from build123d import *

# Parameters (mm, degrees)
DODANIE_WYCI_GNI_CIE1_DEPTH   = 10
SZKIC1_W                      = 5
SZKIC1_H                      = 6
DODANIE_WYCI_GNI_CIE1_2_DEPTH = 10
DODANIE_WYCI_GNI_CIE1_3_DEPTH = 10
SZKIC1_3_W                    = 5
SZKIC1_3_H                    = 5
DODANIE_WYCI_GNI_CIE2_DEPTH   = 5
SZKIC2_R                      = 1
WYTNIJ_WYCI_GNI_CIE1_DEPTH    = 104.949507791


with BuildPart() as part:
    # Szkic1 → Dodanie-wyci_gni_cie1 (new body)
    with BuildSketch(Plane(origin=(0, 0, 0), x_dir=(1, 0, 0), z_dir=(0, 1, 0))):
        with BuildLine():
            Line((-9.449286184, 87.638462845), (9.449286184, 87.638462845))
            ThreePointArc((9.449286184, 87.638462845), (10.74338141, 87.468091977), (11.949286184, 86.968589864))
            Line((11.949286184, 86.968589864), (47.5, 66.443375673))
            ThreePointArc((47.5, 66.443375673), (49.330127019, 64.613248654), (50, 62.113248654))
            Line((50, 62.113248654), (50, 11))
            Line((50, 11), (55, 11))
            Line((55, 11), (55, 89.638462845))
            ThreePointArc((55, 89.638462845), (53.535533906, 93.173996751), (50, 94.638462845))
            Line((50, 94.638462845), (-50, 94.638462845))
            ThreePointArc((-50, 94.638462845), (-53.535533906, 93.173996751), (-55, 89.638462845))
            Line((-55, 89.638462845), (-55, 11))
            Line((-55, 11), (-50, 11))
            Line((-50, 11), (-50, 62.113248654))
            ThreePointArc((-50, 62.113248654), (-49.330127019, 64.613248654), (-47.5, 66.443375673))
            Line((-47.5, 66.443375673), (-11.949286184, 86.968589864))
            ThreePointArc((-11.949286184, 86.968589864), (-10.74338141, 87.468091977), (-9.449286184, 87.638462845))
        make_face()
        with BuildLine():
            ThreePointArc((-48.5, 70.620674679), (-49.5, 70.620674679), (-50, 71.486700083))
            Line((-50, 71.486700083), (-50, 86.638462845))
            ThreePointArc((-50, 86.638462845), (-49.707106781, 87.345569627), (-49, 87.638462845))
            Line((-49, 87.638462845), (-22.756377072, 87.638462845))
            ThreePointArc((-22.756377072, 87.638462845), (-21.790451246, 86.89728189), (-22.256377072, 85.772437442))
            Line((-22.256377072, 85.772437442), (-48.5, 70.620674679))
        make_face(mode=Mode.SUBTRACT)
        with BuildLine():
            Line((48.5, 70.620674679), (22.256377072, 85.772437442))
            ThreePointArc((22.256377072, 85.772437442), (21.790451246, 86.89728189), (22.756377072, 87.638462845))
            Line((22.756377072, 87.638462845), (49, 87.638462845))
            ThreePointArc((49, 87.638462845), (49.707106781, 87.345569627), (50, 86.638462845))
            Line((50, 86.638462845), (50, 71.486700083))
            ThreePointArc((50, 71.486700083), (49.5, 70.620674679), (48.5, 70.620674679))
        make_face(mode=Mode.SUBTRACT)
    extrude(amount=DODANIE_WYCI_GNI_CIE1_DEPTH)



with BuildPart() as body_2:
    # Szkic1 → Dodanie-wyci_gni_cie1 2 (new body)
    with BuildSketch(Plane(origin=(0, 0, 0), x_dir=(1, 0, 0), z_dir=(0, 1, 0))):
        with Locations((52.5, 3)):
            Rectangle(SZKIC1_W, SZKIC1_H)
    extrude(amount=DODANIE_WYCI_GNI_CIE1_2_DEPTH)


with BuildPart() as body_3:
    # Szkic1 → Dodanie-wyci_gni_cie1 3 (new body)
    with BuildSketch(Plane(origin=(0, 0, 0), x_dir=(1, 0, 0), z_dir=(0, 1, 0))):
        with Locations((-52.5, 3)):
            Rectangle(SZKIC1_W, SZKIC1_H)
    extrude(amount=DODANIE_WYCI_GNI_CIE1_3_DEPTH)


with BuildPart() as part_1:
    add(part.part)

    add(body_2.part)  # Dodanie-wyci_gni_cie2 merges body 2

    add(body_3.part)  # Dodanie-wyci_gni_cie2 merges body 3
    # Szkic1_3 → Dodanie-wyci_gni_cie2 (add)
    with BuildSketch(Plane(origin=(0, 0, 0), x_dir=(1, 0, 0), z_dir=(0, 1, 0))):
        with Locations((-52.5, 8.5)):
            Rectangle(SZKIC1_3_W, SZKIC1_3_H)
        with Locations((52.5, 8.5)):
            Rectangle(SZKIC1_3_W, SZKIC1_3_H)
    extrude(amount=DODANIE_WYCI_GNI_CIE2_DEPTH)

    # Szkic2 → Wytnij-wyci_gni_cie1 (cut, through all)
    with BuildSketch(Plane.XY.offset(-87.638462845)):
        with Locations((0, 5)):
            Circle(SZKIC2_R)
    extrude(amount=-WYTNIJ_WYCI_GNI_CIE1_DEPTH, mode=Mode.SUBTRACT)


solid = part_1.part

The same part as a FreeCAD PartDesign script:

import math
import FreeCAD as App
import Part
import Sketcher
from FreeCAD import Vector
Q = App.Units.Quantity


def add_polygon(sketch, points):
    """Adds a closed chain of lines whose ends are joined by coincident constraints."""
    first, n = sketch.GeometryCount, len(points)
    for a, b in zip(points, points[1:] + points[:1]):
        sketch.addGeometry(Part.LineSegment(App.Vector(*a, 0), App.Vector(*b, 0)), False)
    for i in range(n):
        sketch.addConstraint(Sketcher.Constraint("Coincident", first + i, 2, first + (i + 1) % n, 1))

doc = App.newDocument("Part")
body = doc.addObject("PartDesign::Body", "Body")

# Sketch on XZ plane
sketch1 = body.newObject("Sketcher::SketchObject", "Sketch")
sketch1.AttachmentSupport = (doc.getObject("XZ_Plane"), [""])
sketch1.MapMode = "FlatFace"
sketch1.addGeometry(Part.LineSegment(Vector(-9.4, -87.6, 0), Vector(9.4, -87.6, 0)), False)
sketch1.addGeometry(Part.ArcOfCircle(Part.Circle(Vector(9.4, -82.6, 0), Vector(0, 0, 1), 5), math.radians(-90), math.radians(-60)), False)
sketch1.addGeometry(Part.LineSegment(Vector(11.9, -87, 0), Vector(47.5, -66.4, 0)), False)
sketch1.addGeometry(Part.ArcOfCircle(Part.Circle(Vector(45, -62.1, 0), Vector(0, 0, 1), 5), math.radians(-60), math.radians(0)), False)
sketch1.addGeometry(Part.LineSegment(Vector(50, -62.1, 0), Vector(50, -11, 0)), False)
sketch1.addGeometry(Part.LineSegment(Vector(50, -11, 0), Vector(55, -11, 0)), False)
sketch1.addGeometry(Part.LineSegment(Vector(55, -11, 0), Vector(55, -89.6, 0)), False)
sketch1.addGeometry(Part.ArcOfCircle(Part.Circle(Vector(50, -89.6, 0), Vector(0, 0, 1), 5), math.radians(-90), math.radians(0)), False)
sketch1.addGeometry(Part.LineSegment(Vector(50, -94.6, 0), Vector(-50, -94.6, 0)), False)
sketch1.addGeometry(Part.ArcOfCircle(Part.Circle(Vector(-50, -89.6, 0), Vector(0, 0, 1), 5), math.radians(180), math.radians(270)), False)
sketch1.addGeometry(Part.LineSegment(Vector(-55, -89.6, 0), Vector(-55, -11, 0)), False)
sketch1.addGeometry(Part.LineSegment(Vector(-55, -11, 0), Vector(-50, -11, 0)), False)
sketch1.addGeometry(Part.LineSegment(Vector(-50, -11, 0), Vector(-50, -62.1, 0)), False)
sketch1.addGeometry(Part.ArcOfCircle(Part.Circle(Vector(-45, -62.1, 0), Vector(0, 0, 1), 5), math.radians(180), math.radians(240)), False)
sketch1.addGeometry(Part.LineSegment(Vector(-47.5, -66.4, 0), Vector(-11.9, -87, 0)), False)
sketch1.addGeometry(Part.ArcOfCircle(Part.Circle(Vector(-9.4, -82.6, 0), Vector(0, 0, 1), 5), math.radians(-120), math.radians(-90)), False)
sketch1.addGeometry(Part.ArcOfCircle(Part.Circle(Vector(49, -71.5, 0), Vector(0, 0, 1), 1), math.radians(0), math.radians(120)), False)
sketch1.addGeometry(Part.LineSegment(Vector(48.5, -70.6, 0), Vector(22.3, -85.8, 0)), False)
sketch1.addGeometry(Part.ArcOfCircle(Part.Circle(Vector(22.8, -86.6, 0), Vector(0, 0, 1), 1), math.radians(120), math.radians(270)), False)
sketch1.addGeometry(Part.LineSegment(Vector(22.8, -87.6, 0), Vector(49, -87.6, 0)), False)
sketch1.addGeometry(Part.ArcOfCircle(Part.Circle(Vector(49, -86.6, 0), Vector(0, 0, 1), 1), math.radians(-90), math.radians(0)), False)
sketch1.addGeometry(Part.LineSegment(Vector(50, -86.6, 0), Vector(50, -71.5, 0)), False)
sketch1.addGeometry(Part.LineSegment(Vector(-22.3, -85.8, 0), Vector(-48.5, -70.6, 0)), False)
sketch1.addGeometry(Part.ArcOfCircle(Part.Circle(Vector(-49, -71.5, 0), Vector(0, 0, 1), 1), math.radians(60), math.radians(180)), False)
sketch1.addGeometry(Part.LineSegment(Vector(-50, -71.5, 0), Vector(-50, -86.6, 0)), False)
sketch1.addGeometry(Part.ArcOfCircle(Part.Circle(Vector(-49, -86.6, 0), Vector(0, 0, 1), 1), math.radians(180), math.radians(270)), False)
sketch1.addGeometry(Part.LineSegment(Vector(-49, -87.6, 0), Vector(-22.8, -87.6, 0)), False)
sketch1.addGeometry(Part.ArcOfCircle(Part.Circle(Vector(-22.8, -86.6, 0), Vector(0, 0, 1), 1), math.radians(-90), math.radians(60)), False)
sketch1.addConstraint(Sketcher.Constraint("Tangent", 0, 2, 1, 1))
sketch1.addConstraint(Sketcher.Constraint("Tangent", 1, 2, 2, 1))
sketch1.addConstraint(Sketcher.Constraint("Tangent", 2, 2, 3, 1))
sketch1.addConstraint(Sketcher.Constraint("Tangent", 3, 2, 4, 1))
sketch1.addConstraint(Sketcher.Constraint("Coincident", 4, 2, 5, 1))
sketch1.addConstraint(Sketcher.Constraint("Coincident", 5, 2, 6, 1))
sketch1.addConstraint(Sketcher.Constraint("Tangent", 6, 2, 7, 2))
sketch1.addConstraint(Sketcher.Constraint("Tangent", 7, 1, 8, 1))
sketch1.addConstraint(Sketcher.Constraint("Tangent", 8, 2, 9, 2))
sketch1.addConstraint(Sketcher.Constraint("Tangent", 9, 1, 10, 1))
sketch1.addConstraint(Sketcher.Constraint("Coincident", 10, 2, 11, 1))
sketch1.addConstraint(Sketcher.Constraint("Coincident", 11, 2, 12, 1))
sketch1.addConstraint(Sketcher.Constraint("Tangent", 12, 2, 13, 1))
sketch1.addConstraint(Sketcher.Constraint("Tangent", 13, 2, 14, 1))
sketch1.addConstraint(Sketcher.Constraint("Tangent", 14, 2, 15, 1))
sketch1.addConstraint(Sketcher.Constraint("Tangent", 15, 2, 0, 1))
sketch1.addConstraint(Sketcher.Constraint("Tangent", 16, 2, 17, 1))
sketch1.addConstraint(Sketcher.Constraint("Tangent", 17, 2, 18, 1))
sketch1.addConstraint(Sketcher.Constraint("Tangent", 18, 2, 19, 1))
sketch1.addConstraint(Sketcher.Constraint("Tangent", 19, 2, 20, 1))
sketch1.addConstraint(Sketcher.Constraint("Tangent", 20, 2, 21, 1))
sketch1.addConstraint(Sketcher.Constraint("Tangent", 21, 2, 16, 1))
sketch1.addConstraint(Sketcher.Constraint("Tangent", 22, 2, 23, 1))
sketch1.addConstraint(Sketcher.Constraint("Tangent", 23, 2, 24, 1))
sketch1.addConstraint(Sketcher.Constraint("Tangent", 24, 2, 25, 1))
sketch1.addConstraint(Sketcher.Constraint("Tangent", 25, 2, 26, 1))
sketch1.addConstraint(Sketcher.Constraint("Tangent", 26, 2, 27, 1))
sketch1.addConstraint(Sketcher.Constraint("Tangent", 27, 2, 22, 1))
sketch1.addConstraint(Sketcher.Constraint("Horizontal", 0))
sketch1.addConstraint(Sketcher.Constraint("Vertical", 4))
sketch1.addConstraint(Sketcher.Constraint("Horizontal", 5))
sketch1.addConstraint(Sketcher.Constraint("Vertical", 6))
sketch1.addConstraint(Sketcher.Constraint("Horizontal", 8))
sketch1.addConstraint(Sketcher.Constraint("Vertical", 10))
sketch1.addConstraint(Sketcher.Constraint("Horizontal", 11))
sketch1.addConstraint(Sketcher.Constraint("Vertical", 12))
sketch1.addConstraint(Sketcher.Constraint("Horizontal", 19))
sketch1.addConstraint(Sketcher.Constraint("Vertical", 21))
sketch1.addConstraint(Sketcher.Constraint("Vertical", 24))
sketch1.addConstraint(Sketcher.Constraint("Horizontal", 26))
sketch1.addConstraint(Sketcher.Constraint("Equal", 1, 3))
sketch1.addConstraint(Sketcher.Constraint("Equal", 3, 7))
sketch1.addConstraint(Sketcher.Constraint("Equal", 7, 9))
sketch1.addConstraint(Sketcher.Constraint("Equal", 9, 13))
sketch1.addConstraint(Sketcher.Constraint("Equal", 13, 15))
sketch1.addConstraint(Sketcher.Constraint("Equal", 16, 18))
sketch1.addConstraint(Sketcher.Constraint("Equal", 18, 20))
sketch1.addConstraint(Sketcher.Constraint("Equal", 20, 23))
sketch1.addConstraint(Sketcher.Constraint("Equal", 23, 25))
sketch1.addConstraint(Sketcher.Constraint("Equal", 25, 27))
sketch1.addConstraint(Sketcher.Constraint("Symmetric", 3, 3, 13, 3, -2))
sketch1.addConstraint(Sketcher.Constraint("Symmetric", 16, 3, 23, 3, -2))
sketch1.addConstraint(Sketcher.Constraint("Symmetric", 18, 3, 27, 3, -2))
sketch1.addConstraint(Sketcher.Constraint("Symmetric", 5, 2, 10, 2, -2))
sketch1.addConstraint(Sketcher.Constraint("Parallel", 2, 17))
sketch1.addConstraint(Sketcher.Constraint("Parallel", 14, 22))
sketch1.addConstraint(Sketcher.Constraint("Horizontal", 15, 2, 18, 2))
sketch1.addConstraint(Sketcher.Constraint("Vertical", 7, 3, 3, 2))
sketch1.addConstraint(Sketcher.Constraint("Vertical", 7, 1, 20, 2))
sketch1.addConstraint(Sketcher.Constraint("Radius", 1, Q("5 mm")))
sketch1.addConstraint(Sketcher.Constraint("Radius", 16, Q("1 mm")))
sketch1.addConstraint(Sketcher.Constraint("DistanceX", 8, 2, 8, 1, Q("100 mm")))
sketch1.addConstraint(Sketcher.Constraint("Angle", 2, Q("30 deg")))
sketch1.addConstraint(Sketcher.Constraint("DistanceY", 4, 2, -1, 1, Q("11 mm")))
sketch1.addConstraint(Sketcher.Constraint("DistanceY", 7, 3, 1, 3, Q("7 mm")))
sketch1.addConstraint(Sketcher.Constraint("DistanceY", 4, 1, 4, 2, Q("51.113249 mm")))
sketch1.addConstraint(Sketcher.Constraint("DistanceY", 16, 3, -1, 1, Q("71.4867 mm")))
sketch1.addConstraint(Sketcher.Constraint("Distance", 2, Q("41.050428 mm")))
pad1 = body.newObject("PartDesign::Pad", "Pad")
pad1.Profile = sketch1
pad1.Length = 10
pad1.Reversed = True
body2 = doc.addObject("PartDesign::Body", "Body001")

# Sketch on XZ plane
sketch2 = body2.newObject("Sketcher::SketchObject", "Sketch001")
sketch2.AttachmentSupport = (doc.getObject("XZ_Plane001"), [""])
sketch2.MapMode = "FlatFace"
add_polygon(sketch2, [(50, -6), (50, 0), (55, 0), (55, -6)])  # lines 0-3
sketch2.addConstraint(Sketcher.Constraint("Vertical", 0))
sketch2.addConstraint(Sketcher.Constraint("Horizontal", 1))
sketch2.addConstraint(Sketcher.Constraint("Vertical", 2))
sketch2.addConstraint(Sketcher.Constraint("Horizontal", 3))
sketch2.addConstraint(Sketcher.Constraint("PointOnObject", 0, 2, -1))
sketch2.addConstraint(Sketcher.Constraint("DistanceX", 1, 1, 1, 2, Q("5 mm")))
sketch2.addConstraint(Sketcher.Constraint("DistanceY", 0, 1, 0, 2, Q("6 mm")))
sketch2.addConstraint(Sketcher.Constraint("DistanceX", -1, 1, 0, 2, Q("50 mm")))
pad2 = body2.newObject("PartDesign::Pad", "Pad001")
pad2.Profile = sketch2
pad2.Length = 10
pad2.Reversed = True
body3 = doc.addObject("PartDesign::Body", "Body002")

# Sketch on XZ plane
sketch3 = body3.newObject("Sketcher::SketchObject", "Sketch002")
sketch3.AttachmentSupport = (doc.getObject("XZ_Plane002"), [""])
sketch3.MapMode = "FlatFace"
add_polygon(sketch3, [(-55, -6), (-55, 0), (-50, 0), (-50, -6)])  # lines 0-3
sketch3.addConstraint(Sketcher.Constraint("Vertical", 0))
sketch3.addConstraint(Sketcher.Constraint("Horizontal", 1))
sketch3.addConstraint(Sketcher.Constraint("Vertical", 2))
sketch3.addConstraint(Sketcher.Constraint("Horizontal", 3))
sketch3.addConstraint(Sketcher.Constraint("PointOnObject", 0, 2, -1))
sketch3.addConstraint(Sketcher.Constraint("DistanceX", 1, 1, 1, 2, Q("5 mm")))
sketch3.addConstraint(Sketcher.Constraint("DistanceY", 0, 1, 0, 2, Q("6 mm")))
sketch3.addConstraint(Sketcher.Constraint("DistanceX", 0, 2, -1, 1, Q("55 mm")))
pad3 = body3.newObject("PartDesign::Pad", "Pad002")
pad3.Profile = sketch3
pad3.Length = 10
pad3.Reversed = True
body.AllowCompound = True
doc.recompute()

boolean = body.newObject("PartDesign::Boolean", "Boolean")
boolean.Type = "Fuse"
boolean.addObjects([body2])
doc.recompute()

boolean2 = body.newObject("PartDesign::Boolean", "Boolean001")
boolean2.Type = "Fuse"
boolean2.addObjects([body3])

# Sketch on XZ plane
sketch4 = body.newObject("Sketcher::SketchObject", "Sketch003")
sketch4.AttachmentSupport = (doc.getObject("XZ_Plane"), [""])
sketch4.MapMode = "FlatFace"
add_polygon(sketch4, [(-55, -11), (-55, -6), (-50, -6), (-50, -11)])  # lines 0-3
add_polygon(sketch4, [(50, -11), (50, -6), (55, -6), (55, -11)])  # lines 4-7
sketch4.addConstraint(Sketcher.Constraint("Vertical", 0))
sketch4.addConstraint(Sketcher.Constraint("Horizontal", 1))
sketch4.addConstraint(Sketcher.Constraint("Vertical", 2))
sketch4.addConstraint(Sketcher.Constraint("Horizontal", 3))
sketch4.addConstraint(Sketcher.Constraint("Vertical", 4))
sketch4.addConstraint(Sketcher.Constraint("Horizontal", 5))
sketch4.addConstraint(Sketcher.Constraint("Vertical", 6))
sketch4.addConstraint(Sketcher.Constraint("Horizontal", 7))
sketch4.addConstraint(Sketcher.Constraint("Symmetric", 1, 2, 4, 2, -2))
sketch4.addConstraint(Sketcher.Constraint("Symmetric", 3, 2, 6, 2, -2))
sketch4.addConstraint(Sketcher.Constraint("Equal", 7, 0))
sketch4.addConstraint(Sketcher.Constraint("DistanceX", 1, 1, 1, 2, Q("5 mm")))
sketch4.addConstraint(Sketcher.Constraint("DistanceX", 0, 2, -1, 1, Q("55 mm")))
sketch4.addConstraint(Sketcher.Constraint("DistanceY", 0, 2, -1, 1, Q("6 mm")))
pad4 = body.newObject("PartDesign::Pad", "Pad003")
pad4.Profile = sketch4
pad4.Length = 5
pad4.Reversed = True

# Sketch on XY plane
sketch5 = body.newObject("Sketcher::SketchObject", "Sketch004")
sketch5.AttachmentSupport = (doc.getObject("XY_Plane"), [""])
sketch5.MapMode = "FlatFace"
sketch5.AttachmentOffset = App.Placement(Vector(0, 0, -87.638463), App.Rotation())
sketch5.addGeometry(Part.Circle(Vector(0, 5, 0), Vector(0, 0, 1), 1), False)
sketch5.addConstraint(Sketcher.Constraint("PointOnObject", 0, 3, -2))
sketch5.addConstraint(Sketcher.Constraint("Diameter", 0, Q("2 mm")))
sketch5.addConstraint(Sketcher.Constraint("DistanceY", -1, 1, 0, 3, Q("5 mm")))
pocket1 = body.newObject("PartDesign::Pocket", "Pocket")
pocket1.Profile = sketch5
pocket1.Type = "ThroughAll"

doc.recompute()
